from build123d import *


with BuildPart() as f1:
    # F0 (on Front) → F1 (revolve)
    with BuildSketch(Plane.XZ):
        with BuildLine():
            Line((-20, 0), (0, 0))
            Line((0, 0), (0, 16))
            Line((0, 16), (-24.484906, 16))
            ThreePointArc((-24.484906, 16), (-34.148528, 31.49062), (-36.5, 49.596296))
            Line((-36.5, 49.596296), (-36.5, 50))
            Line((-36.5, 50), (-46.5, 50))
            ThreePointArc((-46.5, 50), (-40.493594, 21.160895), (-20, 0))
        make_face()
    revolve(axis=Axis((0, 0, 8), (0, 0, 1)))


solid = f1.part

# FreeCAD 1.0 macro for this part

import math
import FreeCAD as App
import Part
import Sketcher

doc = App.newDocument("Part")
body = doc.addObject("PartDesign::Body", "Body")

# Sketch on XZ plane
sketch1 = body.newObject("Sketcher::SketchObject", "Sketch")
sketch1.AttachmentSupport = (doc.getObject("XZ_Plane"), [""])
sketch1.MapMode = "FlatFace"
sketch1.addGeometry([
    Part.LineSegment(App.Vector(-20, 0, 0), App.Vector(0, 0, 0)),  # 0
    Part.LineSegment(App.Vector(0, 0, 0), App.Vector(0, 16, 0)),  # 1
    Part.LineSegment(App.Vector(0, 16, 0), App.Vector(-24.48, 16, 0)),  # 2
    Part.ArcOfCircle(Part.Circle(App.Vector(6.27, 45.95, 0), App.Vector(0, 0, 1), 42.93), math.radians(175), math.radians(224)),  # 3
    Part.LineSegment(App.Vector(-36.5, 49.6, 0), App.Vector(-36.5, 50, 0)),  # 4
    Part.LineSegment(App.Vector(-36.5, 50, 0), App.Vector(-46.5, 50, 0)),  # 5
    Part.ArcOfCircle(Part.Circle(App.Vector(6.27, 45.95, 0), App.Vector(0, 0, 1), 52.93), math.radians(176), math.radians(240)),  # 6
], False)
sketch1.addConstraint([
    Sketcher.Constraint("Coincident", 0, 2, 1, 1),
    Sketcher.Constraint("Coincident", 1, 2, 2, 1),
    Sketcher.Constraint("Coincident", 2, 2, 3, 2),
    Sketcher.Constraint("Coincident", 3, 1, 4, 1),
    Sketcher.Constraint("Coincident", 4, 2, 5, 1),
    Sketcher.Constraint("Coincident", 5, 2, 6, 1),
    Sketcher.Constraint("Coincident", 6, 2, 0, 1),
    Sketcher.Constraint("Horizontal", 0),
    Sketcher.Constraint("Vertical", 1),
    Sketcher.Constraint("Horizontal", 2),
    Sketcher.Constraint("Vertical", 4),
    Sketcher.Constraint("Horizontal", 5),
    Sketcher.Constraint("Coincident", 0, 2, -1, 1),
    Sketcher.Constraint("Coincident", 6, 3, 3, 3),
    Sketcher.Constraint("DistanceX", 0, 1, 0, 2, 20.0),
    Sketcher.Constraint("DistanceX", 5, 2, 5, 1, 10.0),
    Sketcher.Constraint("DistanceY", 1, 1, 1, 2, 16.0),
    Sketcher.Constraint("DistanceY", -1, 1, 4, 2, 50.0),
    Sketcher.Constraint("DistanceX", 3, 1, -1, 1, 36.5),
    Sketcher.Constraint("Radius", 3, 42.925303),
    Sketcher.Constraint("Radius", 6, 52.925304),
])
revolution = body.newObject("PartDesign::Revolution", "Revolution")
revolution.Profile = sketch1
revolution.ReferenceAxis = (sketch1, ["V_Axis"])
revolution.Angle = 360

doc.recompute()
